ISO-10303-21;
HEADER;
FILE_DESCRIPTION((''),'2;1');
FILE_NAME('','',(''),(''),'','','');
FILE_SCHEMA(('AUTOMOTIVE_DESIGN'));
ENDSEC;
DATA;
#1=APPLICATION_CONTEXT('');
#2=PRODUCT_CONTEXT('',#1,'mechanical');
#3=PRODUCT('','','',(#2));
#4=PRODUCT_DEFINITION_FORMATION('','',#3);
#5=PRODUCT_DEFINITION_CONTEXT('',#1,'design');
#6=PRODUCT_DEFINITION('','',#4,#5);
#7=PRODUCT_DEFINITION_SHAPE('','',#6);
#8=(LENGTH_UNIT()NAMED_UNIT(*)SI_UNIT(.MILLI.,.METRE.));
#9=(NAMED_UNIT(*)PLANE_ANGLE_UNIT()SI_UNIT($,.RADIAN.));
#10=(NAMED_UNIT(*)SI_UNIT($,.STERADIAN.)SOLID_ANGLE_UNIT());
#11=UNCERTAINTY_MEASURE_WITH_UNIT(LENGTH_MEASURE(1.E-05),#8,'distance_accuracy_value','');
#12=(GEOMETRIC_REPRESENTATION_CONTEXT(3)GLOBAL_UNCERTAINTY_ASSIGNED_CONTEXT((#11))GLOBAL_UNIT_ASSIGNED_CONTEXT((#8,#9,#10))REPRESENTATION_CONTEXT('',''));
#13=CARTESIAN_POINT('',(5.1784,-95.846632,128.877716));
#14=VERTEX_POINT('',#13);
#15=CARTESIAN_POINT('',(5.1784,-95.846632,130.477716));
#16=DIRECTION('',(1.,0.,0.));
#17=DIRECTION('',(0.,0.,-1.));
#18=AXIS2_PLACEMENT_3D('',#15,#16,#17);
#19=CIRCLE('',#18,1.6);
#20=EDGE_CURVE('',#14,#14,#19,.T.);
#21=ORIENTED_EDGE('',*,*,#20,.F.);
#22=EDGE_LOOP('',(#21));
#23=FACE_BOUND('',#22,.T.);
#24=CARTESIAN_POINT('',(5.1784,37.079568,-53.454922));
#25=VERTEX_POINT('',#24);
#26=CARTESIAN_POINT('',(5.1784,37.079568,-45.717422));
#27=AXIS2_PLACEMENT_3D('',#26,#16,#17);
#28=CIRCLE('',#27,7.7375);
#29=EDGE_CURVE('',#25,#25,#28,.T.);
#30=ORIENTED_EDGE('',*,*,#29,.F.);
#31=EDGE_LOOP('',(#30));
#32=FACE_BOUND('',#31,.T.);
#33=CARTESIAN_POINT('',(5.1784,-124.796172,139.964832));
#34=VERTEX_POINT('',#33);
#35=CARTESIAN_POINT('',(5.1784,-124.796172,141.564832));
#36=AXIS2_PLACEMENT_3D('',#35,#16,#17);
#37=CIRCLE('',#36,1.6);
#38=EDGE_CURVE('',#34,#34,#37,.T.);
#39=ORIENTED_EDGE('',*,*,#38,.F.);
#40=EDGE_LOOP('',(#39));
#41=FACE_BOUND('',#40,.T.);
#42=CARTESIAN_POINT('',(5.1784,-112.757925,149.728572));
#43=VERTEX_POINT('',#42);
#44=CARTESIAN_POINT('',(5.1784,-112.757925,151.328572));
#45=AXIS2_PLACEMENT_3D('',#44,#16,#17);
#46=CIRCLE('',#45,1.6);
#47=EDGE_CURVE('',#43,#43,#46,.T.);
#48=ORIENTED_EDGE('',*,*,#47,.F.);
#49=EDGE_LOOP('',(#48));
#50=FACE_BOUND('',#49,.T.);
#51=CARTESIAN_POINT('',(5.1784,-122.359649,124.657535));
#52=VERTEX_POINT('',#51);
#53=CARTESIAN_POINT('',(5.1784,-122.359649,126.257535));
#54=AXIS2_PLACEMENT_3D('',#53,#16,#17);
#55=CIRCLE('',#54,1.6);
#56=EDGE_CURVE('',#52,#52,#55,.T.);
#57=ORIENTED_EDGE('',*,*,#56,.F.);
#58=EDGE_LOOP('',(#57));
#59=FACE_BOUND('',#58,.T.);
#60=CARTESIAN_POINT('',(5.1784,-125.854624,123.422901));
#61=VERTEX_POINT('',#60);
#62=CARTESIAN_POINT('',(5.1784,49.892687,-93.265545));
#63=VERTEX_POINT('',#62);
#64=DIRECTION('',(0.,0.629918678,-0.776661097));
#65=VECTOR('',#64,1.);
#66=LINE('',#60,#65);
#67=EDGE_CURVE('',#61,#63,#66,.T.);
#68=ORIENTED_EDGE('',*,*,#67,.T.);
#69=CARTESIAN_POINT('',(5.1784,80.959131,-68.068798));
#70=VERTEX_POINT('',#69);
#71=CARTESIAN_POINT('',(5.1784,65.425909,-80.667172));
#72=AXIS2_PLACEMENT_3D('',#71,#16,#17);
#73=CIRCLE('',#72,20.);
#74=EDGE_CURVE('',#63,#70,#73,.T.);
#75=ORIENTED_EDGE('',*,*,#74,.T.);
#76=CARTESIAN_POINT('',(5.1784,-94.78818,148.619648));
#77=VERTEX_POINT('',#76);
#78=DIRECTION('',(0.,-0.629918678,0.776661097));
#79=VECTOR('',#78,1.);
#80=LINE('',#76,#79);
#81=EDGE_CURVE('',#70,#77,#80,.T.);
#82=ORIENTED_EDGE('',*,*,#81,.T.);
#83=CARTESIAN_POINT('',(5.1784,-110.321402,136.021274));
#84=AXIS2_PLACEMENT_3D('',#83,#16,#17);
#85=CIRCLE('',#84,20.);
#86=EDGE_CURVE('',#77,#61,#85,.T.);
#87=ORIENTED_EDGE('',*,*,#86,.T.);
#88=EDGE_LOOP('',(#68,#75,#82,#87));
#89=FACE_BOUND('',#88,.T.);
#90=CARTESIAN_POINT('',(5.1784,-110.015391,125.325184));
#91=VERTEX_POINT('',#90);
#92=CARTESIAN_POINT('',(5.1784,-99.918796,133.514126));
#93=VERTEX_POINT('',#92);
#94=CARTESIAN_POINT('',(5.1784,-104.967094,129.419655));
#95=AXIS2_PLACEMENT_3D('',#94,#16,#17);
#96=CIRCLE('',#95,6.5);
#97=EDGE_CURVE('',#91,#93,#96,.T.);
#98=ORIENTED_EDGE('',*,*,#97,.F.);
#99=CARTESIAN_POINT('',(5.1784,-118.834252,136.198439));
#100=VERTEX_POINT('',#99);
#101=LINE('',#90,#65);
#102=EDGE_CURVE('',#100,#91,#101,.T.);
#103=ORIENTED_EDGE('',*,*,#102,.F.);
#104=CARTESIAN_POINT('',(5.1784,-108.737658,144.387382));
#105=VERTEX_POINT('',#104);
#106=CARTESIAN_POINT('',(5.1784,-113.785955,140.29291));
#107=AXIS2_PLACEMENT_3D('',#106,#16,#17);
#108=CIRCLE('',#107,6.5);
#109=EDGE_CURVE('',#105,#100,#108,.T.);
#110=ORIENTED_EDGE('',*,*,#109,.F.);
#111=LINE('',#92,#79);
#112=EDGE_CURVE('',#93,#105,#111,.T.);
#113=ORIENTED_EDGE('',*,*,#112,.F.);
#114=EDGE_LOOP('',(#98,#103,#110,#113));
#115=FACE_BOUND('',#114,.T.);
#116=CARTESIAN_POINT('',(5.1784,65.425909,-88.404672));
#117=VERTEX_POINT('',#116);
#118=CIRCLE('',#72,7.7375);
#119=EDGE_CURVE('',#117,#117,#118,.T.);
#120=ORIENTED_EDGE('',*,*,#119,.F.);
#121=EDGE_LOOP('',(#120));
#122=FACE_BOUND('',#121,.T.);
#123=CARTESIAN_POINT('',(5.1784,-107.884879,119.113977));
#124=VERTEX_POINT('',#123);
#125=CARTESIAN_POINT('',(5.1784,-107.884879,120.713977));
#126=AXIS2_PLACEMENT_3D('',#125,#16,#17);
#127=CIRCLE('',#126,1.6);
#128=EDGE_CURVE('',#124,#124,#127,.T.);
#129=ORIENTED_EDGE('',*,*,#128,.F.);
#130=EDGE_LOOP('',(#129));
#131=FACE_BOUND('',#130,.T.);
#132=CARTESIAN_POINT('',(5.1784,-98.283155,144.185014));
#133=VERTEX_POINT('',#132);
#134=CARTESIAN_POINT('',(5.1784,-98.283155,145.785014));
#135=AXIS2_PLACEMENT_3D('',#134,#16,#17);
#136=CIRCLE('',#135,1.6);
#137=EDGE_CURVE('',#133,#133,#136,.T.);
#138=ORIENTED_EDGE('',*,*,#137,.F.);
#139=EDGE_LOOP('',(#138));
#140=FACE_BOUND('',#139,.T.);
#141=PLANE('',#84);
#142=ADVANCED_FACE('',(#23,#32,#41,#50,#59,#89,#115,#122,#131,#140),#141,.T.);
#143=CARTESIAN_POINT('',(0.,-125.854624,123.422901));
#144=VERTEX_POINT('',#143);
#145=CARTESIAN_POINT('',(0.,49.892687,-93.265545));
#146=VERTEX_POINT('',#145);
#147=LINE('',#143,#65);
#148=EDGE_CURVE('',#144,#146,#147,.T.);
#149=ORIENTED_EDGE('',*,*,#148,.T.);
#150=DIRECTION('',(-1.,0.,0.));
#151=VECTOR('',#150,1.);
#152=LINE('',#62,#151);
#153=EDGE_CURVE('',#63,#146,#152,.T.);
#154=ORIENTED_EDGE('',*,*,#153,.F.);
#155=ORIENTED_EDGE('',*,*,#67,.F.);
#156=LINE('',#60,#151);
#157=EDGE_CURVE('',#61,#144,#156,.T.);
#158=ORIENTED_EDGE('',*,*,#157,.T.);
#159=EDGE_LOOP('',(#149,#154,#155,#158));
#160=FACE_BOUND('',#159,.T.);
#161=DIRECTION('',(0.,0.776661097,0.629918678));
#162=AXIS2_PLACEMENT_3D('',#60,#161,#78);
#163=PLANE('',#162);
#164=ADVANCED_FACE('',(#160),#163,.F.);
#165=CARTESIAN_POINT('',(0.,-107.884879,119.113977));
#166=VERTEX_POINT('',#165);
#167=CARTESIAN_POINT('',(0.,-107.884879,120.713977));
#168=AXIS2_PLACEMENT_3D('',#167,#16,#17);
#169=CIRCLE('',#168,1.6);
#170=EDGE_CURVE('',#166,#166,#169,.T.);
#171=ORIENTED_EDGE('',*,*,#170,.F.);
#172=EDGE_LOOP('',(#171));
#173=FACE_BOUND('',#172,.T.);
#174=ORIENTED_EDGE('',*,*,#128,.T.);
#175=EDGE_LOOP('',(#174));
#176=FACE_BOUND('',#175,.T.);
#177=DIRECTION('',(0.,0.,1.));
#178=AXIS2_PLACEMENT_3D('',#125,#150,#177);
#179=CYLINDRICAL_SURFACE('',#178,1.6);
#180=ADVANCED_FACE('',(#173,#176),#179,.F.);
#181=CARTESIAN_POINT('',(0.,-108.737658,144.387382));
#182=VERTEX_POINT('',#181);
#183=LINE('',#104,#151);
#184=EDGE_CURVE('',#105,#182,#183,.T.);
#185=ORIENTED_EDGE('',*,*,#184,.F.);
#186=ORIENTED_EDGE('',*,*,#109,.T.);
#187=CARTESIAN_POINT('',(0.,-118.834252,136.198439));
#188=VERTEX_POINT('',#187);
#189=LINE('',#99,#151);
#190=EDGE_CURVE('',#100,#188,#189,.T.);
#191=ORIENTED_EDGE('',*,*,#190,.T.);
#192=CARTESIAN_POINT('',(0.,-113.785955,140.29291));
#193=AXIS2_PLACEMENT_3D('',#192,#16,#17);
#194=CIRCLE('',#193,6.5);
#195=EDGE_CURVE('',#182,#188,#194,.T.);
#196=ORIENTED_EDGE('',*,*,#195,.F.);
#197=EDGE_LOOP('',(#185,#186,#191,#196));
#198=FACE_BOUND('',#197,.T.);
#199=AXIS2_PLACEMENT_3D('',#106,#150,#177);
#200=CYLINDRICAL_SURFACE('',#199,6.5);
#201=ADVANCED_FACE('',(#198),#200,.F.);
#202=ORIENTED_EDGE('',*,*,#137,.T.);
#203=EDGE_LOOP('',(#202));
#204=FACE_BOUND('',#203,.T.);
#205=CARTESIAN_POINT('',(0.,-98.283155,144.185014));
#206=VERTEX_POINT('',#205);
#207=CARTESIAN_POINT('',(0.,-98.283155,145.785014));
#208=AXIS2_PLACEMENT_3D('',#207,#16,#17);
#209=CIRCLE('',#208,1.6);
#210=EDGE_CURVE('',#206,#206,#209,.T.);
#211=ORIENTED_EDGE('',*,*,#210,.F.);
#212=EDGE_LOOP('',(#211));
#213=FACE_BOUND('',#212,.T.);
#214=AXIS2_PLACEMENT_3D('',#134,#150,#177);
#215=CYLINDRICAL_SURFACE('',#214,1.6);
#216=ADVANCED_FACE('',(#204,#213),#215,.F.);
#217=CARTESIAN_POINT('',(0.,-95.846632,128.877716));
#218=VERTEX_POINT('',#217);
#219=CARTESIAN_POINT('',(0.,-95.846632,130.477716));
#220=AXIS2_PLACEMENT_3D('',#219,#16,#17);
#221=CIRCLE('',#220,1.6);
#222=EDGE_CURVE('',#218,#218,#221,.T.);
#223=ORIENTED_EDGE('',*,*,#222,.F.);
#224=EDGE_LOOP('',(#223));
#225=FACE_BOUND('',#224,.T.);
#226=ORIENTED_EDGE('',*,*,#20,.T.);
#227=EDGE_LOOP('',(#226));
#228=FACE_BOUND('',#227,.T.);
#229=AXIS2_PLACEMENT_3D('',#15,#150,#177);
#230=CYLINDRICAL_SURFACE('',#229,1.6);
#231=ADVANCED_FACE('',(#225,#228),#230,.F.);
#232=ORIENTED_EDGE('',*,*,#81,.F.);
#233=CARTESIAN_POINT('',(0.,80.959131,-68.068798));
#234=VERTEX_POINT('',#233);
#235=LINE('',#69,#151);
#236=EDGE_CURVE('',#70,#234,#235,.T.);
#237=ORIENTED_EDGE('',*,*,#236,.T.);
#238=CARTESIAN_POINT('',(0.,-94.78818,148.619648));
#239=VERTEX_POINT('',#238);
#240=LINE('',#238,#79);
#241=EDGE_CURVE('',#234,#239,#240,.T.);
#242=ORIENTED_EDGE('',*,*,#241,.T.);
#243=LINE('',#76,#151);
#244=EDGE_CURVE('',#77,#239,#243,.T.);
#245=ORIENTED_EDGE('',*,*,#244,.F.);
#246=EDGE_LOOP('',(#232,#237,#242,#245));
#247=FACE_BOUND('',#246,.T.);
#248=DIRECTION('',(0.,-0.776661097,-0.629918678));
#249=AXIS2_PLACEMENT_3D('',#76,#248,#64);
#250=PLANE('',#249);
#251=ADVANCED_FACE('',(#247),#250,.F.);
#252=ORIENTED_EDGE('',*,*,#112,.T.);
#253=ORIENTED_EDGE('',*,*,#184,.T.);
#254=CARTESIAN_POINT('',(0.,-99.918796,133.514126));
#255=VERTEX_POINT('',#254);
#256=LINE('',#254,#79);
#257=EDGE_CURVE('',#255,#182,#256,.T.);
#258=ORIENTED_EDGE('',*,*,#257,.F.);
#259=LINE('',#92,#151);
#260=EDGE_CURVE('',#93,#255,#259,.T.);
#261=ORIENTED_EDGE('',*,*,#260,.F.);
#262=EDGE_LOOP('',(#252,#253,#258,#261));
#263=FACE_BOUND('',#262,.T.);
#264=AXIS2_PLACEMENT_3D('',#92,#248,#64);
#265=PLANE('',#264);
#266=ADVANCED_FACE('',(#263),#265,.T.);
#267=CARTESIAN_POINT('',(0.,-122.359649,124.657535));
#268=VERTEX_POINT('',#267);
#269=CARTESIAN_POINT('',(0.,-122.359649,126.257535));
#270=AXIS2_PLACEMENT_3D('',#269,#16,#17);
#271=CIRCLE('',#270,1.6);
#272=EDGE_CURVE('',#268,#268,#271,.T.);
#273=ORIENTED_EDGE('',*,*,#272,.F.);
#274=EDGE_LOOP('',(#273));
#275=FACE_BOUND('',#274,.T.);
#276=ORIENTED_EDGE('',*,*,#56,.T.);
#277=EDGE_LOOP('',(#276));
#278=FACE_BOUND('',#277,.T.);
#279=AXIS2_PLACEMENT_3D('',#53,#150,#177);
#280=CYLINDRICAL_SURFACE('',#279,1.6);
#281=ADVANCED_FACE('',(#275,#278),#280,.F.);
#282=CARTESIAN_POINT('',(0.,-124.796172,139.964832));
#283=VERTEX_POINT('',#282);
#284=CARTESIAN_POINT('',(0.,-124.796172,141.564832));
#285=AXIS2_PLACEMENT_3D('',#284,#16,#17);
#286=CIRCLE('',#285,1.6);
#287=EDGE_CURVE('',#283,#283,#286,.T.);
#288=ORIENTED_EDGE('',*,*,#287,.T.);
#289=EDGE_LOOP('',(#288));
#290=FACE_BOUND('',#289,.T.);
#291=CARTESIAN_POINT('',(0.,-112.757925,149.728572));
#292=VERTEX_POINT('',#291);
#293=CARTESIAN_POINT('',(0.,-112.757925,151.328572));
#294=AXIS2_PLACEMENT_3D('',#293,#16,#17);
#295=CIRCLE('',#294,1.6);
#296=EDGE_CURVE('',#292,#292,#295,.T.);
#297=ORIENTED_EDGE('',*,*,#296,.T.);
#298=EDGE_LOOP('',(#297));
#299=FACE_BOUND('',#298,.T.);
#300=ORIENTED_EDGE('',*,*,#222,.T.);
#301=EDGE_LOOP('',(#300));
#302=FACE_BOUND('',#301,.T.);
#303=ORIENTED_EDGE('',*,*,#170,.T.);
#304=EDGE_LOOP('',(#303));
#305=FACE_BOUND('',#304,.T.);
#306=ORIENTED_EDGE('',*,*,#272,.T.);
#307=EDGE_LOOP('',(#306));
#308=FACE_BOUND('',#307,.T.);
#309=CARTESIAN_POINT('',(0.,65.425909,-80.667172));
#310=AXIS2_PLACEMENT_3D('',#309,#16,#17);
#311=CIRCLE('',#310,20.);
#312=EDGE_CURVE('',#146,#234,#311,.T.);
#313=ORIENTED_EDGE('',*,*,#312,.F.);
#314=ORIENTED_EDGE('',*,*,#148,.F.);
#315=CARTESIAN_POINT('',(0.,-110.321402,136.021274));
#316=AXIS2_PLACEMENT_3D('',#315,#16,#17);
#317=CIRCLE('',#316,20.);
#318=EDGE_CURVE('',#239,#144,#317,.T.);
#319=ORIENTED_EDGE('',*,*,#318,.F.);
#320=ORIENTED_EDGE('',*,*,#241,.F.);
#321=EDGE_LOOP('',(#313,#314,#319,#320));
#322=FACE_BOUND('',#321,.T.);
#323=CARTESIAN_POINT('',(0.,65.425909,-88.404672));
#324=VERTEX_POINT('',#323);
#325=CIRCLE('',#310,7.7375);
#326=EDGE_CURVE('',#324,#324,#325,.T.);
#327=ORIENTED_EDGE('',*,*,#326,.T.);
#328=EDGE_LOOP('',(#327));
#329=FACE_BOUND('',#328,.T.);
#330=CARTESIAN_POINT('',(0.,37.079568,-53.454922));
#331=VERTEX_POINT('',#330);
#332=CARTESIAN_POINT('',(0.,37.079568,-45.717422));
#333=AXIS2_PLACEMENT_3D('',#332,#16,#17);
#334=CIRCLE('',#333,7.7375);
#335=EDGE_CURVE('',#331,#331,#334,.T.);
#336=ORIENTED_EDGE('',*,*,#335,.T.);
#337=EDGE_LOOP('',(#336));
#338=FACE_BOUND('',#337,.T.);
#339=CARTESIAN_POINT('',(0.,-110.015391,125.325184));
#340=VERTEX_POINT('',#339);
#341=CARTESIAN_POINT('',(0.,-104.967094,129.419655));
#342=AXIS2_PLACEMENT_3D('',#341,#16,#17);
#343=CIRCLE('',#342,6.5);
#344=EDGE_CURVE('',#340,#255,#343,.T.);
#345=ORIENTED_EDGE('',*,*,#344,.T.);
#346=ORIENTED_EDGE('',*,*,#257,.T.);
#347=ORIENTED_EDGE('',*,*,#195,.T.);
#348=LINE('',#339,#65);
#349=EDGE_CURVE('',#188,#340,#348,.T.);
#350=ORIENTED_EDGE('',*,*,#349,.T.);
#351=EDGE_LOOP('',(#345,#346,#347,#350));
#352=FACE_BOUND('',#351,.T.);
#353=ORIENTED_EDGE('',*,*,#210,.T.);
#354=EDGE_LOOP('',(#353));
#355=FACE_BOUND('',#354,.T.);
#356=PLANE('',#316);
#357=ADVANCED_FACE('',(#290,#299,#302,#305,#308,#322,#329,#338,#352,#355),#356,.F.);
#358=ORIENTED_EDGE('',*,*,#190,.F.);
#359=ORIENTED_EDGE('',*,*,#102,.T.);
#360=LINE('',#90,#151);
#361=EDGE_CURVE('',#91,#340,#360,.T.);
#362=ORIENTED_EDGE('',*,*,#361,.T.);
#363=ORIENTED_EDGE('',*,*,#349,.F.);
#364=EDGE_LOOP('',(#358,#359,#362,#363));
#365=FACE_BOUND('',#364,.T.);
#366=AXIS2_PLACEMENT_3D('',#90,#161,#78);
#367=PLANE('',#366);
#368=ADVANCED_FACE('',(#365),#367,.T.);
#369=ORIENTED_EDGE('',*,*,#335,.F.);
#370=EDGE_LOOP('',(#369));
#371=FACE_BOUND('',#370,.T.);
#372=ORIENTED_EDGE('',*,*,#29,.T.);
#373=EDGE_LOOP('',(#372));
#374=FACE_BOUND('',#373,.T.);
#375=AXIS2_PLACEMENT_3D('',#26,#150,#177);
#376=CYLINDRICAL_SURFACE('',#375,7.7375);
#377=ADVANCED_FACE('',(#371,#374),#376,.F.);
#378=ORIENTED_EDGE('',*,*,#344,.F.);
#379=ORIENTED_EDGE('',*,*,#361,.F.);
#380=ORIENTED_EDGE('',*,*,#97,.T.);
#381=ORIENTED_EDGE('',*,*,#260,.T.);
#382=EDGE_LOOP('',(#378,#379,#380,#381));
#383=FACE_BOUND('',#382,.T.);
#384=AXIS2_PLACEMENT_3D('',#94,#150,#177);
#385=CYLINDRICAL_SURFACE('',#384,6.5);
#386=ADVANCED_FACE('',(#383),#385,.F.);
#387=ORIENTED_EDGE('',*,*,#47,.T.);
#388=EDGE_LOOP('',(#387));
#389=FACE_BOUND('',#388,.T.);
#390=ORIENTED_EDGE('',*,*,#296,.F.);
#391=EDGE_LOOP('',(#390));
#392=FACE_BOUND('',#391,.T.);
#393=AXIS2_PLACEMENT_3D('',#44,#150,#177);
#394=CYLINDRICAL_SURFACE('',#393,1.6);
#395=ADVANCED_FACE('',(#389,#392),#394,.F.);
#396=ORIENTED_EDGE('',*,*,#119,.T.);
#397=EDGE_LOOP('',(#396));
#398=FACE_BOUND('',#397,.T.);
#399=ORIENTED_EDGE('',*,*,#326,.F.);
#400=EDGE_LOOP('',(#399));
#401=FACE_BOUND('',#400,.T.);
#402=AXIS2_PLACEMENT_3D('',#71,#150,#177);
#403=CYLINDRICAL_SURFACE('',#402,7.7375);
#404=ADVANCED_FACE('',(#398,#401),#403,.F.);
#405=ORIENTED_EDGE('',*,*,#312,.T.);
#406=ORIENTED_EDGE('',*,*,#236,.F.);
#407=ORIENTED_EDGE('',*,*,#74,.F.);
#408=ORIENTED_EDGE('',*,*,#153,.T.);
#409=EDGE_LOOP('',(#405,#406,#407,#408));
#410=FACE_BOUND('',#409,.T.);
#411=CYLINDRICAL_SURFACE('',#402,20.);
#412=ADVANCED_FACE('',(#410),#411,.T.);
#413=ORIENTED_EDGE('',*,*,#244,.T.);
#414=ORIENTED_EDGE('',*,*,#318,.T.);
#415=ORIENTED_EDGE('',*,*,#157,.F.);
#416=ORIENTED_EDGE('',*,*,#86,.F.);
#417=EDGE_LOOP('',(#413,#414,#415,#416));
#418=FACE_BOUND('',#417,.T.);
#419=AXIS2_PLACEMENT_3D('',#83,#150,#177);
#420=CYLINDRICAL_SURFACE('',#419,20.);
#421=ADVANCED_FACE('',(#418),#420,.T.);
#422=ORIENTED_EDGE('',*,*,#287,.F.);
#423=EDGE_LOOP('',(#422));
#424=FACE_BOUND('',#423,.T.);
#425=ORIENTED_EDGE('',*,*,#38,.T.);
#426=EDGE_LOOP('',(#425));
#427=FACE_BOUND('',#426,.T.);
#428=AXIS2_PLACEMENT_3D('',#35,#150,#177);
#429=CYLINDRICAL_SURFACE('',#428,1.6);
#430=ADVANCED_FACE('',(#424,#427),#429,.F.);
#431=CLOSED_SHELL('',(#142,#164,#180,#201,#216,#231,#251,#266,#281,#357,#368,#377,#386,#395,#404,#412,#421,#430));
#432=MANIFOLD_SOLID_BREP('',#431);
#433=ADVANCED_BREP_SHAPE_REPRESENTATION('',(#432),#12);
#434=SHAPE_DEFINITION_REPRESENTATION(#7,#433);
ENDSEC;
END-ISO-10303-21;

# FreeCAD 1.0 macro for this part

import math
import FreeCAD as App
import Part
import Sketcher
from FreeCAD import Vector
Q = App.Units.Quantity

doc = App.newDocument("Part")
params = doc.addObject("Spreadsheet::Sheet", "Params")
for row, (alias, value) in enumerate([
    ("sketch1_radius", "20 mm"),
    ("sketch1_diameter", "3.2 mm"),
    ("sketch1_radius2", "6.5 mm"),
    ("sketch1_length", "279 mm"),
    ("sketch1_length2", "14 mm"),
    ("pad1_length", "5.1784 mm"),
], start=1):
    params.set(f"A{row}", alias)
    params.set(f"B{row}", "=" + value)
    params.setAlias(f"B{row}", alias)

body = doc.addObject("PartDesign::Body", "Body")

# Sketch on YZ plane
sketch1 = body.newObject("Sketcher::SketchObject", "Sketch")
sketch1.AttachmentSupport = (doc.getObject("YZ_Plane"), [""])
sketch1.MapMode = "FlatFace"
sketch1.addGeometry(Part.LineSegment(Vector(81, -68.1, 0), Vector(-94.8, 148.6, 0)), False)
sketch1.addGeometry(Part.ArcOfCircle(Part.Circle(Vector(-110.3, 136, 0), Vector(0, 0, 1), 20), math.radians(39), math.radians(219)), False)
sketch1.addGeometry(Part.LineSegment(Vector(-125.9, 123.4, 0), Vector(49.9, -93.3, 0)), False)
sketch1.addGeometry(Part.ArcOfCircle(Part.Circle(Vector(65.4, -80.7, 0), Vector(0, 0, 1), 20), math.radians(-141), math.radians(39)), False)
sketch1.addGeometry(Part.Circle(Vector(-107.9, 120.7, 0), Vector(0, 0, 1), 1.6), False)
sketch1.addGeometry(Part.Circle(Vector(-122.4, 126.3, 0), Vector(0, 0, 1), 1.6), False)
sketch1.addGeometry(Part.Circle(Vector(-124.8, 141.6, 0), Vector(0, 0, 1), 1.6), False)
sketch1.addGeometry(Part.LineSegment(Vector(-110, 125.3, 0), Vector(-118.8, 136.2, 0)), False)
sketch1.addGeometry(Part.ArcOfCircle(Part.Circle(Vector(-113.8, 140.3, 0), Vector(0, 0, 1), 6.5), math.radians(39), math.radians(219)), False)
sketch1.addGeometry(Part.LineSegment(Vector(-108.7, 144.4, 0), Vector(-99.9, 133.5, 0)), False)
sketch1.addGeometry(Part.ArcOfCircle(Part.Circle(Vector(-105, 129.4, 0), Vector(0, 0, 1), 6.5), math.radians(-141), math.radians(39)), False)
sketch1.addGeometry(Part.Circle(Vector(-112.8, 151.3, 0), Vector(0, 0, 1), 1.6), False)
sketch1.addGeometry(Part.Circle(Vector(-95.8, 130.5, 0), Vector(0, 0, 1), 1.6), False)
sketch1.addGeometry(Part.Circle(Vector(-98.3, 145.8, 0), Vector(0, 0, 1), 1.6), False)
sketch1.addGeometry(Part.Circle(Vector(37.1, -45.7, 0), Vector(0, 0, 1), 7.7), False)
sketch1.addGeometry(Part.Circle(Vector(65.4, -80.7, 0), Vector(0, 0, 1), 7.7), False)
sketch1.addConstraint(Sketcher.Constraint("Tangent", 0, 2, 1, 1))
sketch1.addConstraint(Sketcher.Constraint("Tangent", 1, 2, 2, 1))
sketch1.addConstraint(Sketcher.Constraint("Tangent", 2, 2, 3, 1))
sketch1.addConstraint(Sketcher.Constraint("Tangent", 3, 2, 0, 1))
sketch1.addConstraint(Sketcher.Constraint("Tangent", 7, 2, 8, 2))
sketch1.addConstraint(Sketcher.Constraint("Tangent", 8, 1, 9, 1))
sketch1.addConstraint(Sketcher.Constraint("Tangent", 9, 2, 10, 2))
sketch1.addConstraint(Sketcher.Constraint("Tangent", 10, 1, 7, 1))
sketch1.addConstraint(Sketcher.Constraint("Coincident", 15, 3, 3, 3))
sketch1.addConstraint(Sketcher.Constraint("Equal", 1, 3))
sketch1.addConstraint(Sketcher.Constraint("Equal", 4, 5))
sketch1.addConstraint(Sketcher.Constraint("Equal", 5, 6))
sketch1.addConstraint(Sketcher.Constraint("Equal", 8, 10))
sketch1.addConstraint(Sketcher.Constraint("Equal", 6, 11))
sketch1.addConstraint(Sketcher.Constraint("Equal", 11, 12))
sketch1.addConstraint(Sketcher.Constraint("Equal", 12, 13))
sketch1.addConstraint(Sketcher.Constraint("Equal", 14, 15))
sketch1.addConstraint(Sketcher.Constraint("Parallel", 2, 7))
sketch1.addConstraint(Sketcher.Constraint("Radius", 1, Q("20 mm")))
sketch1.addConstraint(Sketcher.Constraint("Diameter", 4, Q("3.2 mm")))
sketch1.addConstraint(Sketcher.Constraint("Radius", 8, Q("6.5 mm")))
sketch1.addConstraint(Sketcher.Constraint("Distance", 0, Q("279 mm")))
sketch1.addConstraint(Sketcher.Constraint("Distance", 7, Q("14 mm")))
sketch1.addConstraint(Sketcher.Constraint("Diameter", 14, Q("15.475 mm")))
sketch1.addConstraint(Sketcher.Constraint("DistanceY", -1, 1, 1, 2, Q("123.422901 mm")))
sketch1.addConstraint(Sketcher.Constraint("DistanceY", 3, 2, -1, 1, Q("68.068798 mm")))
sketch1.addConstraint(Sketcher.Constraint("DistanceX", 8, 3, 13, 3, Q("15.5028 mm")))
sketch1.addConstraint(Sketcher.Constraint("DistanceX", 12, 3, 14, 3, Q("132.926201 mm")))
sketch1.addConstraint(Sketcher.Constraint("DistanceY", 14, 3, 4, 3, Q("166.431399 mm")))
sketch1.addConstraint(Sketcher.Constraint("DistanceX", -1, 1, 3, 3, Q("65.425909 mm")))
sketch1.addConstraint(Sketcher.Constraint("DistanceX", 4, 3, -1, 1, Q("107.884879 mm")))
sketch1.addConstraint(Sketcher.Constraint("DistanceX", 5, 3, -1, 1, Q("122.359649 mm")))
sketch1.addConstraint(Sketcher.Constraint("DistanceY", -1, 1, 8, 3, Q("140.29291 mm")))
sketch1.addConstraint(Sketcher.Constraint("DistanceY", -1, 1, 11, 3, Q("151.328572 mm")))
sketch1.addConstraint(Sketcher.Constraint("DistanceX", -1, 1, 14, 3, Q("37.079568 mm")))
sketch1.addConstraint(Sketcher.Constraint("DistanceX", 10, 1, -1, 1, Q("110.015391 mm")))
sketch1.addConstraint(Sketcher.Constraint("DistanceY", 3, 3, 4, 3, Q("201.381149 mm")))
sketch1.addConstraint(Sketcher.Constraint("DistanceY", 5, 3, 1, 3, Q("9.76374 mm")))
sketch1.addConstraint(Sketcher.Constraint("DistanceX", 6, 3, 1, 3, Q("14.47477 mm")))
sketch1.addConstraint(Sketcher.Constraint("DistanceY", 8, 3, 6, 3, Q("1.271922 mm")))
sketch1.addConstraint(Sketcher.Constraint("DistanceX", 8, 3, 11, 3, Q("1.02803 mm")))
sketch1.addConstraint(Sketcher.Constraint("DistanceY", 10, 3, 12, 3, Q("1.058061 mm")))
sketch1.addConstraint(Sketcher.Constraint("DistanceY", 1, 3, 13, 3, Q("9.76374 mm")))
sketch1.setExpression("Constraints[18]", "Params.sketch1_radius")
sketch1.setExpression("Constraints[19]", "Params.sketch1_diameter")
sketch1.setExpression("Constraints[20]", "Params.sketch1_radius2")
sketch1.setExpression("Constraints[21]", "Params.sketch1_length")
sketch1.setExpression("Constraints[22]", "Params.sketch1_length2")
pad1 = body.newObject("PartDesign::Pad", "Pad")
pad1.Profile = sketch1
pad1.setExpression("Length", "Params.pad1_length")

doc.recompute()
